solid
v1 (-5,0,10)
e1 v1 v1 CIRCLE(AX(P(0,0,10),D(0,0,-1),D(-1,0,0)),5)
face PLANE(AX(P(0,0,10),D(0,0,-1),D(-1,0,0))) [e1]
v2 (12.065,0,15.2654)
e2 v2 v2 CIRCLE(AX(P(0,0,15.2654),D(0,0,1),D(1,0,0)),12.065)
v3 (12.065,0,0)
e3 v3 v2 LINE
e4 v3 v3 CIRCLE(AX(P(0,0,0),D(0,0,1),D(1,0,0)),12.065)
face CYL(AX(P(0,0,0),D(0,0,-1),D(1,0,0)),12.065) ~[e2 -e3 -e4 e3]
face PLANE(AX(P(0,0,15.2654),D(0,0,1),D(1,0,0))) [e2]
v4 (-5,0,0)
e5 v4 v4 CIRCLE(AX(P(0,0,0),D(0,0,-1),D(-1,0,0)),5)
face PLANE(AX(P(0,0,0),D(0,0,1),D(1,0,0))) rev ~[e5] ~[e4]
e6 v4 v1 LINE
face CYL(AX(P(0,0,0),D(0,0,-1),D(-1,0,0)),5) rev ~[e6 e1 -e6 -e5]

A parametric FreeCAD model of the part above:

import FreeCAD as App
import Part
import Sketcher
Q = App.Units.Quantity

doc = App.newDocument("Part")
params = doc.addObject("Spreadsheet::Sheet", "Params")
for row, (alias, value) in enumerate([
    ("sketch1_diameter", "0.95 in"),
    ("pad1_length", "0.601 in"),
    ("pocket1_length", "0.3937008 in"),
], start=1):
    params.set(f"A{row}", alias)
    params.set(f"B{row}", "=" + value)
    params.setAlias(f"B{row}", alias)

body = doc.addObject("PartDesign::Body", "Body")

# Sketch on XY plane
sketch1 = body.newObject("Sketcher::SketchObject", "Sketch")
sketch1.AttachmentSupport = (doc.getObject("XY_Plane"), [""])
sketch1.MapMode = "FlatFace"
sketch1.addGeometry(Part.Circle(App.Vector(0, 0, 0), App.Vector(0, 0, 1), 12), False)
sketch1.addConstraint([
    Sketcher.Constraint("Coincident", 0, 3, -1, 1),
    Sketcher.Constraint("Diameter", 0, Q("0.95 in")),
])
sketch1.setExpression("Constraints[1]", "Params.sketch1_diameter")
pad1 = body.newObject("PartDesign::Pad", "Pad")
pad1.Profile = sketch1
pad1.setExpression("Length", "Params.pad1_length")

# Sketch on XY plane
sketch2 = body.newObject("Sketcher::SketchObject", "Sketch001")
sketch2.AttachmentSupport = (doc.getObject("XY_Plane"), [""])
sketch2.MapMode = "FlatFace"
sketch2.addGeometry(Part.Circle(App.Vector(0, 0, 0), App.Vector(0, 0, 1), 5), False)
sketch2.addConstraint([
    Sketcher.Constraint("Coincident", 0, 3, -1, 1),
    Sketcher.Constraint("Diameter", 0, Q("0.3937 in")),
])
pocket1 = body.newObject("PartDesign::Pocket", "Pocket")
pocket1.Profile = sketch2
pocket1.setExpression("Length", "Params.pocket1_length")
pocket1.Reversed = True

doc.recompute()
